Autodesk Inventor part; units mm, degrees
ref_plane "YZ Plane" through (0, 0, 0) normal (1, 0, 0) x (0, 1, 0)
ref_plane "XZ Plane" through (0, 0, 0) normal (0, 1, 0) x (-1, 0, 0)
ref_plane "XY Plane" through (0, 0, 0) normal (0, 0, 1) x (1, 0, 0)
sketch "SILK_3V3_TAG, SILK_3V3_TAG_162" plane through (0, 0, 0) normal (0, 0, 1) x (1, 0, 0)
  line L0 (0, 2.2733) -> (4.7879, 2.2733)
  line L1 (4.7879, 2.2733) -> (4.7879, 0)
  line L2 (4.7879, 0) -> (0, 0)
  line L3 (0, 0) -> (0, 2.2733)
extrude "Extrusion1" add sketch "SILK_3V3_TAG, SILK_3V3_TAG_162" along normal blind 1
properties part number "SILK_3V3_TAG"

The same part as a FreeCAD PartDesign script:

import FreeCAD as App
import Part
import Sketcher


def add_polygon(sketch, points):
    """Adds a closed chain of lines whose ends are joined by coincident constraints."""
    first, n = sketch.GeometryCount, len(points)
    for a, b in zip(points, points[1:] + points[:1]):
        sketch.addGeometry(Part.LineSegment(App.Vector(*a, 0), App.Vector(*b, 0)), False)
    for i in range(n):
        sketch.addConstraint(Sketcher.Constraint("Coincident", first + i, 2, first + (i + 1) % n, 1))

doc = App.newDocument("Part")
params = doc.addObject("Spreadsheet::Sheet", "Params")
for row, (alias, value) in enumerate([
    ("pad1_length", "1 mm"),
], start=1):
    params.set(f"A{row}", alias)
    params.set(f"B{row}", "=" + value)
    params.setAlias(f"B{row}", alias)

body = doc.addObject("PartDesign::Body", "Body")

# Sketch on XY plane
sketch1 = doc.addObject("Sketcher::SketchObject", "Sketch")
body.addObject(sketch1)
sketch1.AttachmentSupport = (doc.XY_Plane, [""])
sketch1.MapMode = "FlatFace"
add_polygon(sketch1, [(4.7879, 2.2733), (0, 2.2733), (0, 0), (4.7879, 0)])  # lines 0-3
sketch1.addConstraint(Sketcher.Constraint("Horizontal", 0))
sketch1.addConstraint(Sketcher.Constraint("Vertical", 1))
sketch1.addConstraint(Sketcher.Constraint("Horizontal", 2))
sketch1.addConstraint(Sketcher.Constraint("Vertical", 3))
sketch1.addConstraint(Sketcher.Constraint("Coincident", 1, 2, -1, 1))
sketch1.addConstraint(Sketcher.Constraint("DistanceX", 0, 2, 0, 1, 4.788))
sketch1.addConstraint(Sketcher.Constraint("DistanceY", 1, 2, 1, 1, 2.2733))
pad1 = doc.addObject("PartDesign::Pad", "Pad")
body.addObject(pad1)
pad1.Profile = sketch1
pad1.setExpression("Length", "Params.pad1_length")

doc.recompute()
